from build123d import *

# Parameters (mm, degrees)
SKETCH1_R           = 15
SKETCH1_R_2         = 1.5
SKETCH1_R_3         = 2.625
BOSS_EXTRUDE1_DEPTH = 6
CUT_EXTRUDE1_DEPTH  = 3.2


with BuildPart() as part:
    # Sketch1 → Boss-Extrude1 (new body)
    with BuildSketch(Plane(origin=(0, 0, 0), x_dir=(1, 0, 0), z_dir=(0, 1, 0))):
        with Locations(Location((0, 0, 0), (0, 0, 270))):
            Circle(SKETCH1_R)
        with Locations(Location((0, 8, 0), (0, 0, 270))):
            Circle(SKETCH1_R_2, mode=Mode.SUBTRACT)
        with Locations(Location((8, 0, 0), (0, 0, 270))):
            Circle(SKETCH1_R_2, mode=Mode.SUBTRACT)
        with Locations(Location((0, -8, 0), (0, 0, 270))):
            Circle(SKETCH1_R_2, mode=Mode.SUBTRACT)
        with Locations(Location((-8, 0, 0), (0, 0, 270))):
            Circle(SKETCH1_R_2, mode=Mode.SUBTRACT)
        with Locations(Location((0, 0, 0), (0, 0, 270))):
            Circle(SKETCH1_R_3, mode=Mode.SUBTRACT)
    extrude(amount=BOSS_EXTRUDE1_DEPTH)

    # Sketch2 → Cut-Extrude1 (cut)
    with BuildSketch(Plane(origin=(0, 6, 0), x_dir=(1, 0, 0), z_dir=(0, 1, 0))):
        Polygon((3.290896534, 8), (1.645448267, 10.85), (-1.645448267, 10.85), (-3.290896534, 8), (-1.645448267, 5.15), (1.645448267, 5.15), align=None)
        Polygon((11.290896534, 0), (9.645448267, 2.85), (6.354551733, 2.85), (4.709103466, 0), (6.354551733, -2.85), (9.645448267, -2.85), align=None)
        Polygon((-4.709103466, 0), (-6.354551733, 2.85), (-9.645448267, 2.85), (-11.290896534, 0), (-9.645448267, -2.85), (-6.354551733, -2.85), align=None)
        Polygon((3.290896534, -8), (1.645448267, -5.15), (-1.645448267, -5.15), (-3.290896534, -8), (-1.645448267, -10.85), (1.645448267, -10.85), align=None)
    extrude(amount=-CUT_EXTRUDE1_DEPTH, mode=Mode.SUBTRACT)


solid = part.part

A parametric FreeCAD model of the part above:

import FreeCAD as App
import Part
import Sketcher
from FreeCAD import Vector
Q = App.Units.Quantity


def add_polygon(sketch, points):
    """Adds a closed chain of lines whose ends are joined by coincident constraints."""
    first, n = sketch.GeometryCount, len(points)
    for a, b in zip(points, points[1:] + points[:1]):
        sketch.addGeometry(Part.LineSegment(App.Vector(*a, 0), App.Vector(*b, 0)), False)
    for i in range(n):
        sketch.addConstraint(Sketcher.Constraint("Coincident", first + i, 2, first + (i + 1) % n, 1))

doc = App.newDocument("Part")
params = doc.addObject("Spreadsheet::Sheet", "Params")
for row, (alias, value) in enumerate([
    ("sketch1_diameter", "30 mm"),
    ("sketch1_diameter2", "3 mm"),
    ("sketch1_diameter3", "5.25 mm"),
    ("pad1_length", "6 mm"),
    ("pocket1_length", "3.2 mm"),
], start=1):
    params.set(f"A{row}", alias)
    params.set(f"B{row}", "=" + value)
    params.setAlias(f"B{row}", alias)

body = doc.addObject("PartDesign::Body", "Body")

# Sketch on XZ plane
sketch1 = doc.addObject("Sketcher::SketchObject", "Sketch")
body.addObject(sketch1)
sketch1.AttachmentSupport = (doc.XZ_Plane, [""])
sketch1.MapMode = "FlatFace"
sketch1.addGeometry(Part.Circle(Vector(0, 0, 0), Vector(0, 0, 1), 15), False)
sketch1.addGeometry(Part.Circle(Vector(0, -8, 0), Vector(0, 0, 1), 1.5), False)
sketch1.addGeometry(Part.Circle(Vector(-8, 0, 0), Vector(0, 0, 1), 1.5), False)
sketch1.addGeometry(Part.Circle(Vector(8, 0, 0), Vector(0, 0, 1), 1.5), False)
sketch1.addGeometry(Part.Circle(Vector(0, 0, 0), Vector(0, 0, 1), 2.6), False)
sketch1.addGeometry(Part.Circle(Vector(0, 8, 0), Vector(0, 0, 1), 1.5), False)
sketch1.addConstraint(Sketcher.Constraint("Coincident", 0, 3, -1, 1))
sketch1.addConstraint(Sketcher.Constraint("Coincident", 4, 3, -1, 1))
sketch1.addConstraint(Sketcher.Constraint("Equal", 1, 2))
sketch1.addConstraint(Sketcher.Constraint("Equal", 2, 3))
sketch1.addConstraint(Sketcher.Constraint("Equal", 3, 5))
sketch1.addConstraint(Sketcher.Constraint("Symmetric", 2, 3, 3, 3, -1, 1))
sketch1.addConstraint(Sketcher.Constraint("Symmetric", 1, 3, 5, 3, -1, 1))
sketch1.addConstraint(Sketcher.Constraint("PointOnObject", 1, 3, -2))
sketch1.addConstraint(Sketcher.Constraint("PointOnObject", 2, 3, -1))
sketch1.addConstraint(Sketcher.Constraint("Diameter", 0, 30.0))
sketch1.addConstraint(Sketcher.Constraint("Diameter", 1, 3.0))
sketch1.addConstraint(Sketcher.Constraint("Diameter", 4, 5.25))
sketch1.addConstraint(Sketcher.Constraint("DistanceY", 1, 3, -1, 1, 8.0))
sketch1.addConstraint(Sketcher.Constraint("DistanceX", 2, 3, -1, 1, 8.0))
sketch1.setExpression("Constraints[9]", "Params.sketch1_diameter")
sketch1.setExpression("Constraints[10]", "Params.sketch1_diameter2")
sketch1.setExpression("Constraints[11]", "Params.sketch1_diameter3")
pad1 = doc.addObject("PartDesign::Pad", "Pad")
body.addObject(pad1)
pad1.Profile = sketch1
pad1.setExpression("Length", "Params.pad1_length")
pad1.Reversed = True

# Sketch on XZ plane
sketch2 = doc.addObject("Sketcher::SketchObject", "Sketch001")
body.addObject(sketch2)
sketch2.AttachmentSupport = (doc.XZ_Plane, [""])
sketch2.MapMode = "FlatFace"
sketch2.AttachmentOffset = App.Placement(Vector(0, 0, -6), App.Rotation())
add_polygon(sketch2, [(3.3, -8), (1.6, -10.8), (-1.6, -10.8), (-3.3, -8), (-1.6, -5.2), (1.6, -5.2)])  # lines 0-5
add_polygon(sketch2, [(11.3, 0), (9.6, -2.9), (6.4, -2.9), (4.7, 0), (6.4, 2.9), (9.6, 2.9)])  # lines 6-11
add_polygon(sketch2, [(-4.7, 0), (-6.4, -2.9), (-9.6, -2.9), (-11.3, 0), (-9.6, 2.9), (-6.4, 2.9)])  # lines 12-17
add_polygon(sketch2, [(3.3, 8), (1.6, 5.2), (-1.6, 5.2), (-3.3, 8), (-1.6, 10.8), (1.6, 10.8)])  # lines 18-23
sketch2.addConstraint(Sketcher.Constraint("Horizontal", 1))
sketch2.addConstraint(Sketcher.Constraint("Horizontal", 4))
sketch2.addConstraint(Sketcher.Constraint("Horizontal", 7))
sketch2.addConstraint(Sketcher.Constraint("Horizontal", 10))
sketch2.addConstraint(Sketcher.Constraint("Horizontal", 13))
sketch2.addConstraint(Sketcher.Constraint("Horizontal", 16))
sketch2.addConstraint(Sketcher.Constraint("Horizontal", 19))
sketch2.addConstraint(Sketcher.Constraint("Horizontal", 22))
sketch2.addConstraint(Sketcher.Constraint("Symmetric", 9, 2, 12, 2, -1, 1))
sketch2.addConstraint(Sketcher.Constraint("Symmetric", 11, 2, 14, 2, -1, 1))
sketch2.addConstraint(Sketcher.Constraint("Symmetric", 6, 2, 15, 2, -1, 1))
sketch2.addConstraint(Sketcher.Constraint("Symmetric", 8, 2, 17, 2, -1, 1))
sketch2.addConstraint(Sketcher.Constraint("Symmetric", 3, 2, 18, 2, -1, 1))
sketch2.addConstraint(Sketcher.Constraint("Symmetric", 5, 2, 20, 2, -1, 1))
sketch2.addConstraint(Sketcher.Constraint("Symmetric", 0, 2, 21, 2, -1, 1))
sketch2.addConstraint(Sketcher.Constraint("Symmetric", 2, 2, 23, 2, -1, 1))
sketch2.addConstraint(Sketcher.Constraint("Symmetric", 2, 2, 5, 2, -2))
sketch2.addConstraint(Sketcher.Constraint("Symmetric", 7, 2, 12, 2, -2))
sketch2.addConstraint(Sketcher.Constraint("PointOnObject", 8, 2, -1))
sketch2.addConstraint(Sketcher.Constraint("PointOnObject", 11, 2, -1))
sketch2.addConstraint(Sketcher.Constraint("Parallel", 0, 3))
sketch2.addConstraint(Sketcher.Constraint("Parallel", 2, 5))
sketch2.addConstraint(Sketcher.Constraint("Parallel", 3, 6))
sketch2.addConstraint(Sketcher.Constraint("Parallel", 5, 8))
sketch2.addConstraint(Sketcher.Constraint("Parallel", 6, 9))
sketch2.addConstraint(Sketcher.Constraint("Parallel", 8, 11))
sketch2.addConstraint(Sketcher.Constraint("Parallel", 11, 14))
sketch2.addConstraint(Sketcher.Constraint("Parallel", 14, 17))
sketch2.addConstraint(Sketcher.Constraint("Parallel", 17, 20))
sketch2.addConstraint(Sketcher.Constraint("Parallel", 20, 23))
sketch2.addConstraint(Sketcher.Constraint("Vertical", 1, 2, 3, 2))
sketch2.addConstraint(Sketcher.Constraint("Equal", 4, 7))
sketch2.addConstraint(Sketcher.Constraint("Equal", 5, 6))
sketch2.addConstraint(Sketcher.Constraint("Angle", 0, Q("-120 deg")))
sketch2.addConstraint(Sketcher.Constraint("DistanceY", 2, 2, -1, 1, 8.0))
sketch2.addConstraint(Sketcher.Constraint("DistanceX", 4, 2, 6, 2, 8.0))
sketch2.addConstraint(Sketcher.Constraint("DistanceY", 1, 2, 3, 2, 5.7))
sketch2.addConstraint(Sketcher.Constraint("DistanceX", 1, 2, 1, 1, 3.290897))
pocket1 = doc.addObject("PartDesign::Pocket", "Pocket")
body.addObject(pocket1)
pocket1.Profile = sketch2
pocket1.setExpression("Length", "Params.pocket1_length")
pocket1.Reversed = True

doc.recompute()
